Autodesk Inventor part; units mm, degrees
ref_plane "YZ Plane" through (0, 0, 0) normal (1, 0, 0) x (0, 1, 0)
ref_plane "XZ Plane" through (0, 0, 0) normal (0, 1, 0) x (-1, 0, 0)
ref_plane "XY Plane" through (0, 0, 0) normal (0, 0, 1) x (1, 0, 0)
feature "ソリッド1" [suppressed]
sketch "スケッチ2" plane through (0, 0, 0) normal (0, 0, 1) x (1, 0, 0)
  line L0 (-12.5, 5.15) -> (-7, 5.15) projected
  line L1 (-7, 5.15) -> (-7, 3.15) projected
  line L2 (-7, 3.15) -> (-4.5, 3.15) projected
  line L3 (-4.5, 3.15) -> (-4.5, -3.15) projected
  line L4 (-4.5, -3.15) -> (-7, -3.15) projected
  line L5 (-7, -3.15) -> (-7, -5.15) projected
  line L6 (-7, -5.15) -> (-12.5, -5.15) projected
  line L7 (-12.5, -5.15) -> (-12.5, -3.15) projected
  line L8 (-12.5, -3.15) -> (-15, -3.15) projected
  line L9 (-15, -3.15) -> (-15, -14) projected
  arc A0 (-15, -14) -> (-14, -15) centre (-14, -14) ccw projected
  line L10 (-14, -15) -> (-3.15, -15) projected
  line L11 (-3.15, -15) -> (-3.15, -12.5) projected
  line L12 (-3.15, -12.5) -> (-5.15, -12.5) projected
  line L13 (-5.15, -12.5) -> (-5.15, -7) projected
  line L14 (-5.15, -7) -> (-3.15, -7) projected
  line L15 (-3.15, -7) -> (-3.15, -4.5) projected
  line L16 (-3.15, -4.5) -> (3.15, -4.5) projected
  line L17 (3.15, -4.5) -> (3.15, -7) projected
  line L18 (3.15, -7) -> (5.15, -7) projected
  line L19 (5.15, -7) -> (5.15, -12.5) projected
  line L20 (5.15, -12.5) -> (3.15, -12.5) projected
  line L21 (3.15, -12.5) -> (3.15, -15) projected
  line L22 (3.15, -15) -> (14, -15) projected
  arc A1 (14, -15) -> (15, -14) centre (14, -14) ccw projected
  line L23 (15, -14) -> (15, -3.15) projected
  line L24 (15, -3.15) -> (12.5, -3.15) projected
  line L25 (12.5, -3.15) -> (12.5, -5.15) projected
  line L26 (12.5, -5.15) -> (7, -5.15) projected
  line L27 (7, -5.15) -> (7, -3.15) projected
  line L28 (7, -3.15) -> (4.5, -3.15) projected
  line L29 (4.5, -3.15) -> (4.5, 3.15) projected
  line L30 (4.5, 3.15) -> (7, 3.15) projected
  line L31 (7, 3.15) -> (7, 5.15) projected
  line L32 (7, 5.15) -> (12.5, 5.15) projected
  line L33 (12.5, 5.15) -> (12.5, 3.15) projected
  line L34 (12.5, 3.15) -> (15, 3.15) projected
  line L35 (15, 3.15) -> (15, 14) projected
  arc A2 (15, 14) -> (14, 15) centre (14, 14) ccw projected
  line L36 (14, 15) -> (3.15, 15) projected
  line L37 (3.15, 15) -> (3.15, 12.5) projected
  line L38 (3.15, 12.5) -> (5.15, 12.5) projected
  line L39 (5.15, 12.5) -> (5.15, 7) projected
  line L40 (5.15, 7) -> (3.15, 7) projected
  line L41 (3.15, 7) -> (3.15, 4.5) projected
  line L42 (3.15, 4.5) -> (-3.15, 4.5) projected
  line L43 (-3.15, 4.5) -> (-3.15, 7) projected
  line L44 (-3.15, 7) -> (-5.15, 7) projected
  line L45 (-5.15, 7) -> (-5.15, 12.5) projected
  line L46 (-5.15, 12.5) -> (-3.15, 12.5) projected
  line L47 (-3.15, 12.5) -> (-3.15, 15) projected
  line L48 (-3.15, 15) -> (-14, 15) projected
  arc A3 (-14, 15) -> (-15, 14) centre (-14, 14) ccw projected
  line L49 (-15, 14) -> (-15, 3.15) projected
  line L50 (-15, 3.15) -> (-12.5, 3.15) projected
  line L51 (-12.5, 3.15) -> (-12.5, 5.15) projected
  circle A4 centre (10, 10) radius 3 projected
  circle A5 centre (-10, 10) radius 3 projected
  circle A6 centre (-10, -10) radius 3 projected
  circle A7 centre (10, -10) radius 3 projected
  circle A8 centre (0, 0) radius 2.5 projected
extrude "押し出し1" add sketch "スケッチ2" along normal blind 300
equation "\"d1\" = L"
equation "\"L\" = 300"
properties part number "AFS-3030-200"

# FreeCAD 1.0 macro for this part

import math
import FreeCAD as App
import Part
import Sketcher
Q = App.Units.Quantity

doc = App.newDocument("Part")
body = doc.addObject("PartDesign::Body", "Body")

# Sketch on XY plane
sketch1 = doc.addObject("Sketcher::SketchObject", "Sketch")
body.addObject(sketch1)
sketch1.AttachmentSupport = (doc.XY_Plane, [""])
sketch1.MapMode = "FlatFace"
sketch1.addGeometry([
    Part.LineSegment(App.Vector(-12.5, 3.1, 0), App.Vector(-12.5, 5.2, 0)),  # 0
    Part.LineSegment(App.Vector(-12.5, 5.2, 0), App.Vector(-7, 5.2, 0)),  # 1
    Part.LineSegment(App.Vector(-7, 5.2, 0), App.Vector(-7, 3.1, 0)),  # 2
    Part.LineSegment(App.Vector(-7, 3.1, 0), App.Vector(-4.5, 3.1, 0)),  # 3
    Part.LineSegment(App.Vector(-4.5, 3.1, 0), App.Vector(-4.5, -3.1, 0)),  # 4
    Part.LineSegment(App.Vector(-4.5, -3.1, 0), App.Vector(-7, -3.1, 0)),  # 5
    Part.LineSegment(App.Vector(-7, -3.1, 0), App.Vector(-7, -5.2, 0)),  # 6
    Part.LineSegment(App.Vector(-7, -5.2, 0), App.Vector(-12.5, -5.2, 0)),  # 7
    Part.LineSegment(App.Vector(-12.5, -5.2, 0), App.Vector(-12.5, -3.1, 0)),  # 8
    Part.LineSegment(App.Vector(-12.5, -3.1, 0), App.Vector(-15, -3.1, 0)),  # 9
    Part.LineSegment(App.Vector(-15, -3.1, 0), App.Vector(-15, -14, 0)),  # 10
    Part.ArcOfCircle(Part.Circle(App.Vector(-14, -14, 0), App.Vector(0, 0, 1), 1), math.radians(180), math.radians(270)),  # 11
    Part.LineSegment(App.Vector(-14, -15, 0), App.Vector(-3.1, -15, 0)),  # 12
    Part.LineSegment(App.Vector(-3.1, -15, 0), App.Vector(-3.1, -12.5, 0)),  # 13
    Part.LineSegment(App.Vector(-3.1, -12.5, 0), App.Vector(-5.2, -12.5, 0)),  # 14
    Part.LineSegment(App.Vector(-5.2, -12.5, 0), App.Vector(-5.2, -7, 0)),  # 15
    Part.LineSegment(App.Vector(-5.2, -7, 0), App.Vector(-3.1, -7, 0)),  # 16
    Part.LineSegment(App.Vector(-3.1, -7, 0), App.Vector(-3.1, -4.5, 0)),  # 17
    Part.LineSegment(App.Vector(-3.1, -4.5, 0), App.Vector(3.1, -4.5, 0)),  # 18
    Part.LineSegment(App.Vector(3.1, -4.5, 0), App.Vector(3.1, -7, 0)),  # 19
    Part.LineSegment(App.Vector(3.1, -7, 0), App.Vector(5.2, -7, 0)),  # 20
    Part.LineSegment(App.Vector(5.2, -7, 0), App.Vector(5.2, -12.5, 0)),  # 21
    Part.LineSegment(App.Vector(5.2, -12.5, 0), App.Vector(3.1, -12.5, 0)),  # 22
    Part.LineSegment(App.Vector(3.1, -12.5, 0), App.Vector(3.1, -15, 0)),  # 23
    Part.LineSegment(App.Vector(3.1, -15, 0), App.Vector(14, -15, 0)),  # 24
    Part.ArcOfCircle(Part.Circle(App.Vector(14, -14, 0), App.Vector(0, 0, 1), 1), math.radians(-90), math.radians(0)),  # 25
    Part.LineSegment(App.Vector(15, -14, 0), App.Vector(15, -3.1, 0)),  # 26
    Part.LineSegment(App.Vector(15, -3.1, 0), App.Vector(12.5, -3.1, 0)),  # 27
    Part.LineSegment(App.Vector(12.5, -3.1, 0), App.Vector(12.5, -5.2, 0)),  # 28
    Part.LineSegment(App.Vector(12.5, -5.2, 0), App.Vector(7, -5.2, 0)),  # 29
    Part.LineSegment(App.Vector(7, -5.2, 0), App.Vector(7, -3.1, 0)),  # 30
    Part.LineSegment(App.Vector(7, -3.1, 0), App.Vector(4.5, -3.1, 0)),  # 31
    Part.LineSegment(App.Vector(4.5, -3.1, 0), App.Vector(4.5, 3.1, 0)),  # 32
    Part.LineSegment(App.Vector(4.5, 3.1, 0), App.Vector(7, 3.1, 0)),  # 33
    Part.LineSegment(App.Vector(7, 3.1, 0), App.Vector(7, 5.2, 0)),  # 34
    Part.LineSegment(App.Vector(7, 5.2, 0), App.Vector(12.5, 5.2, 0)),  # 35
    Part.LineSegment(App.Vector(12.5, 5.2, 0), App.Vector(12.5, 3.1, 0)),  # 36
    Part.LineSegment(App.Vector(12.5, 3.1, 0), App.Vector(15, 3.1, 0)),  # 37
    Part.LineSegment(App.Vector(15, 3.1, 0), App.Vector(15, 14, 0)),  # 38
    Part.ArcOfCircle(Part.Circle(App.Vector(14, 14, 0), App.Vector(0, 0, 1), 1), math.radians(0), math.radians(90)),  # 39
    Part.LineSegment(App.Vector(14, 15, 0), App.Vector(3.1, 15, 0)),  # 40
    Part.LineSegment(App.Vector(3.1, 15, 0), App.Vector(3.1, 12.5, 0)),  # 41
    Part.LineSegment(App.Vector(3.1, 12.5, 0), App.Vector(5.2, 12.5, 0)),  # 42
    Part.LineSegment(App.Vector(5.2, 12.5, 0), App.Vector(5.2, 7, 0)),  # 43
    Part.LineSegment(App.Vector(5.2, 7, 0), App.Vector(3.1, 7, 0)),  # 44
    Part.LineSegment(App.Vector(3.1, 7, 0), App.Vector(3.1, 4.5, 0)),  # 45
    Part.LineSegment(App.Vector(3.1, 4.5, 0), App.Vector(-3.1, 4.5, 0)),  # 46
    Part.LineSegment(App.Vector(-3.1, 4.5, 0), App.Vector(-3.1, 7, 0)),  # 47
    Part.LineSegment(App.Vector(-3.1, 7, 0), App.Vector(-5.2, 7, 0)),  # 48
    Part.LineSegment(App.Vector(-5.2, 7, 0), App.Vector(-5.2, 12.5, 0)),  # 49
    Part.LineSegment(App.Vector(-5.2, 12.5, 0), App.Vector(-3.1, 12.5, 0)),  # 50
    Part.LineSegment(App.Vector(-3.1, 12.5, 0), App.Vector(-3.1, 15, 0)),  # 51
    Part.LineSegment(App.Vector(-3.1, 15, 0), App.Vector(-14, 15, 0)),  # 52
    Part.ArcOfCircle(Part.Circle(App.Vector(-14, 14, 0), App.Vector(0, 0, 1), 1), math.radians(90), math.radians(180)),  # 53
    Part.LineSegment(App.Vector(-15, 14, 0), App.Vector(-15, 3.1, 0)),  # 54
    Part.LineSegment(App.Vector(-15, 3.1, 0), App.Vector(-12.5, 3.1, 0)),  # 55
    Part.Circle(App.Vector(-10, -10, 0), App.Vector(0, 0, 1), 3),  # 56
    Part.Circle(App.Vector(10, -10, 0), App.Vector(0, 0, 1), 3),  # 57
    Part.Circle(App.Vector(-10, 10, 0), App.Vector(0, 0, 1), 3),  # 58
    Part.Circle(App.Vector(0, 0, 0), App.Vector(0, 0, 1), 2.5),  # 59
    Part.Circle(App.Vector(10, 10, 0), App.Vector(0, 0, 1), 3),  # 60
], False)
sketch1.addConstraint([
    Sketcher.Constraint("Coincident", 0, 2, 1, 1),
    Sketcher.Constraint("Coincident", 1, 2, 2, 1),
    Sketcher.Constraint("Coincident", 2, 2, 3, 1),
    Sketcher.Constraint("Coincident", 3, 2, 4, 1),
    Sketcher.Constraint("Coincident", 4, 2, 5, 1),
    Sketcher.Constraint("Coincident", 5, 2, 6, 1),
    Sketcher.Constraint("Coincident", 6, 2, 7, 1),
    Sketcher.Constraint("Coincident", 7, 2, 8, 1),
    Sketcher.Constraint("Coincident", 8, 2, 9, 1),
    Sketcher.Constraint("Coincident", 9, 2, 10, 1),
    Sketcher.Constraint("Tangent", 10, 2, 11, 1),
    Sketcher.Constraint("Tangent", 11, 2, 12, 1),
    Sketcher.Constraint("Coincident", 12, 2, 13, 1),
    Sketcher.Constraint("Coincident", 13, 2, 14, 1),
    Sketcher.Constraint("Coincident", 14, 2, 15, 1),
    Sketcher.Constraint("Coincident", 15, 2, 16, 1),
    Sketcher.Constraint("Coincident", 16, 2, 17, 1),
    Sketcher.Constraint("Coincident", 17, 2, 18, 1),
    Sketcher.Constraint("Coincident", 18, 2, 19, 1),
    Sketcher.Constraint("Coincident", 19, 2, 20, 1),
    Sketcher.Constraint("Coincident", 20, 2, 21, 1),
    Sketcher.Constraint("Coincident", 21, 2, 22, 1),
    Sketcher.Constraint("Coincident", 22, 2, 23, 1),
    Sketcher.Constraint("Coincident", 23, 2, 24, 1),
    Sketcher.Constraint("Tangent", 24, 2, 25, 1),
    Sketcher.Constraint("Tangent", 25, 2, 26, 1),
    Sketcher.Constraint("Coincident", 26, 2, 27, 1),
    Sketcher.Constraint("Coincident", 27, 2, 28, 1),
    Sketcher.Constraint("Coincident", 28, 2, 29, 1),
    Sketcher.Constraint("Coincident", 29, 2, 30, 1),
    Sketcher.Constraint("Coincident", 30, 2, 31, 1),
    Sketcher.Constraint("Coincident", 31, 2, 32, 1),
    Sketcher.Constraint("Coincident", 32, 2, 33, 1),
    Sketcher.Constraint("Coincident", 33, 2, 34, 1),
    Sketcher.Constraint("Coincident", 34, 2, 35, 1),
    Sketcher.Constraint("Coincident", 35, 2, 36, 1),
    Sketcher.Constraint("Coincident", 36, 2, 37, 1),
    Sketcher.Constraint("Coincident", 37, 2, 38, 1),
    Sketcher.Constraint("Tangent", 38, 2, 39, 1),
    Sketcher.Constraint("Tangent", 39, 2, 40, 1),
    Sketcher.Constraint("Coincident", 40, 2, 41, 1),
    Sketcher.Constraint("Coincident", 41, 2, 42, 1),
    Sketcher.Constraint("Coincident", 42, 2, 43, 1),
    Sketcher.Constraint("Coincident", 43, 2, 44, 1),
    Sketcher.Constraint("Coincident", 44, 2, 45, 1),
    Sketcher.Constraint("Coincident", 45, 2, 46, 1),
    Sketcher.Constraint("Coincident", 46, 2, 47, 1),
    Sketcher.Constraint("Coincident", 47, 2, 48, 1),
    Sketcher.Constraint("Coincident", 48, 2, 49, 1),
    Sketcher.Constraint("Coincident", 49, 2, 50, 1),
    Sketcher.Constraint("Coincident", 50, 2, 51, 1),
    Sketcher.Constraint("Coincident", 51, 2, 52, 1),
    Sketcher.Constraint("Tangent", 52, 2, 53, 1),
    Sketcher.Constraint("Tangent", 53, 2, 54, 1),
    Sketcher.Constraint("Coincident", 54, 2, 55, 1),
    Sketcher.Constraint("Coincident", 55, 2, 0, 1),
    Sketcher.Constraint("Vertical", 0),
    Sketcher.Constraint("Horizontal", 1),
    Sketcher.Constraint("Vertical", 2),
    Sketcher.Constraint("Horizontal", 3),
    Sketcher.Constraint("Vertical", 4),
    Sketcher.Constraint("Horizontal", 5),
    Sketcher.Constraint("Vertical", 6),
    Sketcher.Constraint("Horizontal", 7),
    Sketcher.Constraint("Vertical", 8),
    Sketcher.Constraint("Horizontal", 9),
    Sketcher.Constraint("Vertical", 10),
    Sketcher.Constraint("Horizontal", 12),
    Sketcher.Constraint("Vertical", 13),
    Sketcher.Constraint("Horizontal", 14),
    Sketcher.Constraint("Vertical", 15),
    Sketcher.Constraint("Horizontal", 16),
    Sketcher.Constraint("Vertical", 17),
    Sketcher.Constraint("Horizontal", 18),
    Sketcher.Constraint("Vertical", 19),
    Sketcher.Constraint("Horizontal", 20),
    Sketcher.Constraint("Vertical", 21),
    Sketcher.Constraint("Horizontal", 22),
    Sketcher.Constraint("Vertical", 23),
    Sketcher.Constraint("Horizontal", 24),
    Sketcher.Constraint("Vertical", 26),
    Sketcher.Constraint("Horizontal", 27),
    Sketcher.Constraint("Vertical", 28),
    Sketcher.Constraint("Horizontal", 29),
    Sketcher.Constraint("Vertical", 30),
    Sketcher.Constraint("Horizontal", 31),
    Sketcher.Constraint("Vertical", 32),
    Sketcher.Constraint("Horizontal", 33),
    Sketcher.Constraint("Vertical", 34),
    Sketcher.Constraint("Horizontal", 35),
    Sketcher.Constraint("Vertical", 36),
    Sketcher.Constraint("Horizontal", 37),
    Sketcher.Constraint("Vertical", 38),
    Sketcher.Constraint("Horizontal", 40),
    Sketcher.Constraint("Vertical", 41),
    Sketcher.Constraint("Horizontal", 42),
    Sketcher.Constraint("Vertical", 43),
    Sketcher.Constraint("Horizontal", 44),
    Sketcher.Constraint("Vertical", 45),
    Sketcher.Constraint("Horizontal", 46),
    Sketcher.Constraint("Vertical", 47),
    Sketcher.Constraint("Horizontal", 48),
    Sketcher.Constraint("Vertical", 49),
    Sketcher.Constraint("Horizontal", 50),
    Sketcher.Constraint("Vertical", 51),
    Sketcher.Constraint("Horizontal", 52),
    Sketcher.Constraint("Vertical", 54),
    Sketcher.Constraint("Horizontal", 55),
    Sketcher.Constraint("Coincident", 59, 3, -1, 1),
    Sketcher.Constraint("Equal", 11, 25),
    Sketcher.Constraint("Equal", 25, 39),
    Sketcher.Constraint("Equal", 39, 53),
    Sketcher.Constraint("Equal", 56, 57),
    Sketcher.Constraint("Equal", 57, 58),
    Sketcher.Constraint("Equal", 58, 60),
    Sketcher.Constraint("Symmetric", 11, 3, 39, 3, -1, 1),
    Sketcher.Constraint("Symmetric", 25, 3, 53, 3, -1, 1),
    Sketcher.Constraint("Symmetric", 57, 3, 58, 3, -1, 1),
    Sketcher.Constraint("Symmetric", 56, 3, 60, 3, -1, 1),
    Sketcher.Constraint("Symmetric", 0, 2, 28, 2, -1, 1),
    Sketcher.Constraint("Symmetric", 2, 2, 30, 2, -1, 1),
    Sketcher.Constraint("Symmetric", 4, 2, 32, 2, -1, 1),
    Sketcher.Constraint("Symmetric", 6, 2, 34, 2, -1, 1),
    Sketcher.Constraint("Symmetric", 8, 2, 36, 2, -1, 1),
    Sketcher.Constraint("Symmetric", 13, 2, 41, 2, -1, 1),
    Sketcher.Constraint("Symmetric", 15, 2, 43, 2, -1, 1),
    Sketcher.Constraint("Symmetric", 17, 2, 45, 2, -1, 1),
    Sketcher.Constraint("Symmetric", 19, 2, 47, 2, -1, 1),
    Sketcher.Constraint("Symmetric", 21, 2, 49, 2, -1, 1),
    Sketcher.Constraint("Symmetric", 11, 3, 25, 3, -2),
    Sketcher.Constraint("Symmetric", 56, 3, 57, 3, -2),
    Sketcher.Constraint("Symmetric", 16, 2, 19, 2, -2),
    Sketcher.Constraint("Symmetric", 14, 2, 21, 2, -2),
    Sketcher.Constraint("Symmetric", 8, 2, 27, 2, -2),
    Sketcher.Constraint("Symmetric", 6, 2, 29, 2, -2),
    Sketcher.Constraint("Horizontal", 5, 2, 8, 2),
    Sketcher.Constraint("Horizontal", 27, 2, 30, 2),
    Sketcher.Constraint("Horizontal", 37, 2, 54, 2),
    Sketcher.Constraint("Vertical", 13, 2, 16, 2),
    Sketcher.Constraint("Vertical", 19, 2, 22, 2),
    Sketcher.Constraint("Vertical", 47, 2, 50, 2),
    Sketcher.Constraint("Equal", 5, 9),
    Sketcher.Constraint("Equal", 50, 0),
    Sketcher.Constraint("Equal", 46, 4),
    Sketcher.Constraint("Equal", 52, 10),
    Sketcher.Constraint("Equal", 55, 13),
    Sketcher.Constraint("Equal", 35, 15),
    Sketcher.Constraint("Equal", 13, 17),
    Sketcher.Constraint("Diameter", 56, Q("6 mm")),
    Sketcher.Constraint("Diameter", 59, Q("5 mm")),
    Sketcher.Constraint("Radius", 11, Q("1 mm")),
    Sketcher.Constraint("DistanceX", 14, 2, 14, 1, Q("2 mm")),
    Sketcher.Constraint("DistanceX", 1, 1, 1, 2, Q("5.5 mm")),
    Sketcher.Constraint("DistanceX", 3, 1, 3, 2, Q("2.5 mm")),
    Sketcher.Constraint("DistanceX", 18, 1, 18, 2, Q("6.3 mm")),
    Sketcher.Constraint("DistanceX", 11, 3, -1, 1, Q("14 mm")),
    Sketcher.Constraint("DistanceX", 56, 3, -1, 1, Q("10 mm")),
    Sketcher.Constraint("DistanceY", 56, 3, -1, 1, Q("10 mm")),
])
pad1 = doc.addObject("PartDesign::Pad", "Pad")
body.addObject(pad1)
pad1.Profile = sketch1
pad1.Length = 300

doc.recompute()
